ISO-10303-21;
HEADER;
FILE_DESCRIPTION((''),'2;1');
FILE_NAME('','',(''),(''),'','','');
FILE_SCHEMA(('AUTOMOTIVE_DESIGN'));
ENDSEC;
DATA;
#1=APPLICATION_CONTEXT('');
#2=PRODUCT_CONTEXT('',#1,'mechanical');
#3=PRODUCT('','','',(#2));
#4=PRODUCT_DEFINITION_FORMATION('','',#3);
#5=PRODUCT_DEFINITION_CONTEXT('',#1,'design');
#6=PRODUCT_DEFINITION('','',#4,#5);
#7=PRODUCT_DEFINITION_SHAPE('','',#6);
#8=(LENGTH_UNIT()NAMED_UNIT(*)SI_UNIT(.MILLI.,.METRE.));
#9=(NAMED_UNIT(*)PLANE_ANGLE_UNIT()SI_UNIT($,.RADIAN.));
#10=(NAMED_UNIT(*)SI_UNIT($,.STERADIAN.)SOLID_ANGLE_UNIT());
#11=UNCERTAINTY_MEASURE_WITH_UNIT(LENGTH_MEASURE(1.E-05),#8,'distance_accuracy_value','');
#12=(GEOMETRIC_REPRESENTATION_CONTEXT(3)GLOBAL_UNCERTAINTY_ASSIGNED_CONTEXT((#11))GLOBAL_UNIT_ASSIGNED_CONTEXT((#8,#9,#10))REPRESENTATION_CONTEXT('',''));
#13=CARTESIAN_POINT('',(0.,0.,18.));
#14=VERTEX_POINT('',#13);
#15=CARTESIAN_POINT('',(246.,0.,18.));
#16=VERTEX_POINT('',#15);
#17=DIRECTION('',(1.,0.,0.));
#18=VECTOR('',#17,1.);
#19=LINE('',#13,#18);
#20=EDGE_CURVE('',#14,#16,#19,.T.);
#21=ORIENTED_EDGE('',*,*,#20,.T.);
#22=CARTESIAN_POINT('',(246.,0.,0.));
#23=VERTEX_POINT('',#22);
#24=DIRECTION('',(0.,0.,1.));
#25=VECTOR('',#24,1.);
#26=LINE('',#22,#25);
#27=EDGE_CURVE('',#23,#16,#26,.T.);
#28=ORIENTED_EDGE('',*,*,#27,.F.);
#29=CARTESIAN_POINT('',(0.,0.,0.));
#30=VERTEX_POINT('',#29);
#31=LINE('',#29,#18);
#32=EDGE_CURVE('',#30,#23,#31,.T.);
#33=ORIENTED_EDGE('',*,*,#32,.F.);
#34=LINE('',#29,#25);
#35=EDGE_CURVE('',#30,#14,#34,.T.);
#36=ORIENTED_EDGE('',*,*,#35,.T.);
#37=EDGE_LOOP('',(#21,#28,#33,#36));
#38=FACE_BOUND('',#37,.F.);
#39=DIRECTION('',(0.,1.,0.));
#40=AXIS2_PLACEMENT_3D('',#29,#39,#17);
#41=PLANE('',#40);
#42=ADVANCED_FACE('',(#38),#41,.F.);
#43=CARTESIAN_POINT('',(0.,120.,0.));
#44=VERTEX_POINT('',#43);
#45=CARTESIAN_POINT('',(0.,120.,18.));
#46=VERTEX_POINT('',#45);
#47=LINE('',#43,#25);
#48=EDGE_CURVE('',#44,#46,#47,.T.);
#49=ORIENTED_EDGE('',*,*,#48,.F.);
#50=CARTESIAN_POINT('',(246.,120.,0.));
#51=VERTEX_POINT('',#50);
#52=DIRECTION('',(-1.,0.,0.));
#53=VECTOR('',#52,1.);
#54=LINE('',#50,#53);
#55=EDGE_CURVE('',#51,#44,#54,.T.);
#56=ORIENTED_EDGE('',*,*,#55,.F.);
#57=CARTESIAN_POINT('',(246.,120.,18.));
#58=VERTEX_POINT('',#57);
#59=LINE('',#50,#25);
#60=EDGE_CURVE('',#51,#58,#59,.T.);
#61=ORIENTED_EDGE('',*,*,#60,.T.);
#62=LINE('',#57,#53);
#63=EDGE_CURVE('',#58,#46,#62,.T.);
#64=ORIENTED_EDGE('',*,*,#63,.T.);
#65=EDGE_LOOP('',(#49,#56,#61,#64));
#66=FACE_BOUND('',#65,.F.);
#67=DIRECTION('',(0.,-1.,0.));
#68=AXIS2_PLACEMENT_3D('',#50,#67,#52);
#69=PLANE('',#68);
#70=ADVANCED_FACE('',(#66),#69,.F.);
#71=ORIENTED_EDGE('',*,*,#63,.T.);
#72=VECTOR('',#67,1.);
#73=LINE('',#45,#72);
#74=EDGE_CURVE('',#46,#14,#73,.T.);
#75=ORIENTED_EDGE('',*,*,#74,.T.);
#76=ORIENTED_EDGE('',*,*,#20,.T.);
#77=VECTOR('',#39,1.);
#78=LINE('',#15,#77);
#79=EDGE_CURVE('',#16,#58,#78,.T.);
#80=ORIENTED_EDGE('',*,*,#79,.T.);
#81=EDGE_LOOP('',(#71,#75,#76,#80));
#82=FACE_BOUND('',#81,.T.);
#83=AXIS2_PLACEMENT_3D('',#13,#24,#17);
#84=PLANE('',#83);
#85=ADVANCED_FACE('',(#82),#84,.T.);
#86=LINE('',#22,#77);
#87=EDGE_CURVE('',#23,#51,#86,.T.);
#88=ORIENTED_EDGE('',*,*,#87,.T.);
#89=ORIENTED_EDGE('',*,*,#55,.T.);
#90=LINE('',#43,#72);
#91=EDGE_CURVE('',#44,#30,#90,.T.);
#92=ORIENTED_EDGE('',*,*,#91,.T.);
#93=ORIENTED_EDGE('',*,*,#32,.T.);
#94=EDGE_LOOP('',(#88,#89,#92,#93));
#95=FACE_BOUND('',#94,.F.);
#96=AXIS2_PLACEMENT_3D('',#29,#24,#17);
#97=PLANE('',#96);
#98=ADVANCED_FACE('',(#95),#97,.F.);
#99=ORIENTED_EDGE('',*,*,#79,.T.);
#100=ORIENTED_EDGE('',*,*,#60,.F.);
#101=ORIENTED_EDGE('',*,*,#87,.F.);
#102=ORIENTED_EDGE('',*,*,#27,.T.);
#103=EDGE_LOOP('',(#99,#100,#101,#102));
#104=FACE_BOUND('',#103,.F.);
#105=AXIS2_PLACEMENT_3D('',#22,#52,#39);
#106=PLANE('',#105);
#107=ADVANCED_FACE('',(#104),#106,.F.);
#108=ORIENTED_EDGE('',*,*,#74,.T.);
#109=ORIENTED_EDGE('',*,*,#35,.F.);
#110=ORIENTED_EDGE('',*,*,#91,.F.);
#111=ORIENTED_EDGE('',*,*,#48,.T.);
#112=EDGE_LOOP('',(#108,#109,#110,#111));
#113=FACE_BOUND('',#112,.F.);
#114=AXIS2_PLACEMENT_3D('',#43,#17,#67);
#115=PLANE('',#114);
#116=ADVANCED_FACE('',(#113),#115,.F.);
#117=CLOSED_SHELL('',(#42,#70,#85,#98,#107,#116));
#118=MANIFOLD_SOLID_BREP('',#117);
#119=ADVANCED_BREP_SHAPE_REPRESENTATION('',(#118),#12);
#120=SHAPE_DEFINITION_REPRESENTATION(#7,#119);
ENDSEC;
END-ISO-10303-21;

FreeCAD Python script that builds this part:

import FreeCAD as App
import Part
import Sketcher
from FreeCAD import Vector

doc = App.newDocument("Part")
params = doc.addObject("Spreadsheet::Sheet", "Params")
for row, (alias, value) in enumerate([
    ("sketch1_width", "246 mm"),
    ("sketch1_height", "120 mm"),
    ("pad1_length", "18 mm"),
], start=1):
    params.set(f"A{row}", alias)
    params.set(f"B{row}", "=" + value)
    params.setAlias(f"B{row}", alias)

body = doc.addObject("PartDesign::Body", "Body")

sketch1 = doc.addObject("Sketcher::SketchObject", "Sketch")
body.addObject(sketch1)
sketch1.AttachmentSupport = (doc.XY_Plane, [""])
sketch1.MapMode = "FlatFace"
sketch1.addGeometry([
    Part.LineSegment(Vector(0, 120, 0), Vector(0, 0, 0)),
    Part.LineSegment(Vector(0, 0, 0), Vector(246, 0, 0)),
    Part.LineSegment(Vector(246, 0, 0), Vector(246, 120, 0)),
    Part.LineSegment(Vector(246, 120, 0), Vector(0, 120, 0)),
], False)
sketch1.addConstraint([
    Sketcher.Constraint("Coincident", 0, 2, 1, 1),
    Sketcher.Constraint("Coincident", 1, 2, 2, 1),
    Sketcher.Constraint("Coincident", 2, 2, 3, 1),
    Sketcher.Constraint("Coincident", 3, 2, 0, 1),
    Sketcher.Constraint("Vertical", 0),
    Sketcher.Constraint("Horizontal", 1),
    Sketcher.Constraint("Vertical", 2),
    Sketcher.Constraint("Horizontal", 3),
    Sketcher.Constraint("Coincident", 0, 2, -1, 1),
    Sketcher.Constraint("DistanceX", 1, 1, 1, 2, 246.0),
    Sketcher.Constraint("DistanceY", 0, 2, 0, 1, 120.0),
])
sketch1.setExpression("Constraints[9]", "Params.sketch1_width")
sketch1.setExpression("Constraints[10]", "Params.sketch1_height")
pad1 = doc.addObject("PartDesign::Pad", "Pad")
body.addObject(pad1)
pad1.Profile = sketch1
pad1.setExpression("Length", "Params.pad1_length")

doc.recompute()
